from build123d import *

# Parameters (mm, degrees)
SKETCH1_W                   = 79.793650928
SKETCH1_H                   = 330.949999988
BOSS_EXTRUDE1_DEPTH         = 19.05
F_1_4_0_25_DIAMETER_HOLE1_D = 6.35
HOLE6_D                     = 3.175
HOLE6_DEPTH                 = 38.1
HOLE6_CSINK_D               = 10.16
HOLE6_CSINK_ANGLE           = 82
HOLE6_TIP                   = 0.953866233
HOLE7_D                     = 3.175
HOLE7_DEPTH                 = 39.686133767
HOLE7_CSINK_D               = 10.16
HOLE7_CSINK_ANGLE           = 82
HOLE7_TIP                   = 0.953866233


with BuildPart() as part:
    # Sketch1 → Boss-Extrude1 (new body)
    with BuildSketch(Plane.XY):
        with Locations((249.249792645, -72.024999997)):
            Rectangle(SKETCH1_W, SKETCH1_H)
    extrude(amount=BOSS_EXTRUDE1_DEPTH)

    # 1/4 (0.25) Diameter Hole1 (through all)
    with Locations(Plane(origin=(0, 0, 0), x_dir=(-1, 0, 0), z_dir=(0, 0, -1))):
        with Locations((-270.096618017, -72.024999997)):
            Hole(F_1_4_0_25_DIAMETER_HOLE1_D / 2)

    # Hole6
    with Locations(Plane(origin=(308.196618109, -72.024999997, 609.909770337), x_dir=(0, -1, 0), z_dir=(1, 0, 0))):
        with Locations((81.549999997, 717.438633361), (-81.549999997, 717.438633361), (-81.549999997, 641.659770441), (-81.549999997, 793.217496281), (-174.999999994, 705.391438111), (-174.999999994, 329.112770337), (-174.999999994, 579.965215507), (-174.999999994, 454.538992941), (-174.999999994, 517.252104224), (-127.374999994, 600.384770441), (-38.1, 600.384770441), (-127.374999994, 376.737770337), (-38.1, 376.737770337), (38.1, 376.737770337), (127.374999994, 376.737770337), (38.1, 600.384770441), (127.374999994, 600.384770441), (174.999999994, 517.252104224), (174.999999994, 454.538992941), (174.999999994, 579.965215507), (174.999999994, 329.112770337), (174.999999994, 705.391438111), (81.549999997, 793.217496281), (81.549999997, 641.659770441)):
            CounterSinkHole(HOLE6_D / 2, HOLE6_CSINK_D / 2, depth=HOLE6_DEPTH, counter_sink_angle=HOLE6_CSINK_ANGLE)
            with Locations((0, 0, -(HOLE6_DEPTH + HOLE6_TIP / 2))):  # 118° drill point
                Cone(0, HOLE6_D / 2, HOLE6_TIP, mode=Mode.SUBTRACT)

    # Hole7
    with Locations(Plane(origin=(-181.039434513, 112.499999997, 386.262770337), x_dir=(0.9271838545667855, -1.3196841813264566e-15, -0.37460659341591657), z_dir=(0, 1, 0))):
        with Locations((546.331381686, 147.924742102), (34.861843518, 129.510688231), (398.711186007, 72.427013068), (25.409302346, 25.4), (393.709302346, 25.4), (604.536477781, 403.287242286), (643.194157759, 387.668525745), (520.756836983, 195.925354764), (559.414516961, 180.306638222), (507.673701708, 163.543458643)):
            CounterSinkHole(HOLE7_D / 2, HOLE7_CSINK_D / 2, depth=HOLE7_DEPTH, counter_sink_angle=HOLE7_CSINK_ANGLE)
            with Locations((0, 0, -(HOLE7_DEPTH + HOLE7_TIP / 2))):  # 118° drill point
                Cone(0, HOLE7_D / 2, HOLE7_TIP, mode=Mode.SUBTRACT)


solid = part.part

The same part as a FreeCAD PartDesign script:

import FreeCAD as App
import Part
import Sketcher
from FreeCAD import Vector
Q = App.Units.Quantity


def add_polygon(sketch, points):
    """Adds a closed chain of lines whose ends are joined by coincident constraints."""
    first, n = sketch.GeometryCount, len(points)
    for a, b in zip(points, points[1:] + points[:1]):
        sketch.addGeometry(Part.LineSegment(App.Vector(*a, 0), App.Vector(*b, 0)), False)
    for i in range(n):
        sketch.addConstraint(Sketcher.Constraint("Coincident", first + i, 2, first + (i + 1) % n, 1))

doc = App.newDocument("Part")
body = doc.addObject("PartDesign::Body", "Body")

# Sketch on XY plane
sketch1 = body.newObject("Sketcher::SketchObject", "Sketch")
sketch1.AttachmentSupport = (doc.getObject("XY_Plane"), [""])
sketch1.MapMode = "FlatFace"
add_polygon(sketch1, [(209, 93), (209, -237), (289, -237), (289, 93)])  # lines 0-3
sketch1.addConstraint(Sketcher.Constraint("Vertical", 0))
sketch1.addConstraint(Sketcher.Constraint("Horizontal", 1))
sketch1.addConstraint(Sketcher.Constraint("Vertical", 2))
sketch1.addConstraint(Sketcher.Constraint("Horizontal", 3))
sketch1.addConstraint(Sketcher.Constraint("DistanceY", 0, 2, 0, 1, Q("330.95 mm")))
sketch1.addConstraint(Sketcher.Constraint("DistanceX", 1, 1, 1, 2, Q("79.793651 mm")))
sketch1.addConstraint(Sketcher.Constraint("DistanceY", 0, 2, -1, 1, Q("237.5 mm")))
sketch1.addConstraint(Sketcher.Constraint("DistanceX", -1, 1, 1, 2, Q("289.146618 mm")))
pad1 = body.newObject("PartDesign::Pad", "Pad")
pad1.Profile = sketch1
pad1.Length = Q("0.75 in")

# Sketch on XY plane
sketch2 = body.newObject("Sketcher::SketchObject", "Sketch001")
sketch2.AttachmentSupport = (doc.getObject("XY_Plane"), [""])
sketch2.MapMode = "FlatFace"
sketch2.addGeometry(Part.Circle(Vector(270.1, -72, 0), Vector(0, 0, 1), 3.2), False)
sketch2.addConstraint(Sketcher.Constraint("Diameter", 0, Q("0.25 in")))
sketch2.addConstraint(Sketcher.Constraint("DistanceY", 0, 3, -1, 1, Q("72.025 mm")))
sketch2.addConstraint(Sketcher.Constraint("DistanceX", -1, 1, 0, 3, Q("270.096618 mm")))
doc.recompute()
hole = body.newObject("PartDesign::Hole", "Hole")
hole.Profile = sketch2
hole.ThreadType = "None"
hole.Diameter = Q("0.25 in")
hole.DepthType = "ThroughAll"
hole.Reversed = True

# Sketch on YZ plane
sketch3 = body.newObject("Sketcher::SketchObject", "Sketch002")
sketch3.AttachmentSupport = (doc.getObject("YZ_Plane"), [""])
sketch3.MapMode = "FlatFace"
sketch3.AttachmentOffset = App.Placement(Vector(0, 0, 308.196618), App.Rotation())
sketch3.addGeometry(Part.Circle(Vector(-153.6, -107.5, 0), Vector(0, 0, 1), 1.6), False)
sketch3.addGeometry(Part.Circle(Vector(9.5, -107.5, 0), Vector(0, 0, 1), 1.6), False)
sketch3.addGeometry(Part.Circle(Vector(9.5, -31.8, 0), Vector(0, 0, 1), 1.6), False)
sketch3.addGeometry(Part.Circle(Vector(9.5, -183.3, 0), Vector(0, 0, 1), 1.6), False)
sketch3.addGeometry(Part.Circle(Vector(103, -95.5, 0), Vector(0, 0, 1), 1.6), False)
sketch3.addGeometry(Part.Circle(Vector(103, 280.8, 0), Vector(0, 0, 1), 1.6), False)
sketch3.addGeometry(Part.Circle(Vector(103, 29.9, 0), Vector(0, 0, 1), 1.6), False)
sketch3.addGeometry(Part.Circle(Vector(103, 155.4, 0), Vector(0, 0, 1), 1.6), False)
sketch3.addGeometry(Part.Circle(Vector(103, 92.7, 0), Vector(0, 0, 1), 1.6), False)
sketch3.addGeometry(Part.Circle(Vector(55.3, 9.5, 0), Vector(0, 0, 1), 1.6), False)
sketch3.addGeometry(Part.Circle(Vector(-33.9, 9.5, 0), Vector(0, 0, 1), 1.6), False)
sketch3.addGeometry(Part.Circle(Vector(55.3, 233.2, 0), Vector(0, 0, 1), 1.6), False)
sketch3.addGeometry(Part.Circle(Vector(-33.9, 233.2, 0), Vector(0, 0, 1), 1.6), False)
sketch3.addGeometry(Part.Circle(Vector(-110.1, 233.2, 0), Vector(0, 0, 1), 1.6), False)
sketch3.addGeometry(Part.Circle(Vector(-199.4, 233.2, 0), Vector(0, 0, 1), 1.6), False)
sketch3.addGeometry(Part.Circle(Vector(-110.1, 9.5, 0), Vector(0, 0, 1), 1.6), False)
sketch3.addGeometry(Part.Circle(Vector(-199.4, 9.5, 0), Vector(0, 0, 1), 1.6), False)
sketch3.addGeometry(Part.Circle(Vector(-247, 92.7, 0), Vector(0, 0, 1), 1.6), False)
sketch3.addGeometry(Part.Circle(Vector(-247, 155.4, 0), Vector(0, 0, 1), 1.6), False)
sketch3.addGeometry(Part.Circle(Vector(-247, 29.9, 0), Vector(0, 0, 1), 1.6), False)
sketch3.addGeometry(Part.Circle(Vector(-247, 280.8, 0), Vector(0, 0, 1), 1.6), False)
sketch3.addGeometry(Part.Circle(Vector(-247, -95.5, 0), Vector(0, 0, 1), 1.6), False)
sketch3.addGeometry(Part.Circle(Vector(-153.6, -183.3, 0), Vector(0, 0, 1), 1.6), False)
sketch3.addGeometry(Part.Circle(Vector(-153.6, -31.8, 0), Vector(0, 0, 1), 1.6), False)
sketch3.addConstraint(Sketcher.Constraint("Equal", 0, 1))
sketch3.addConstraint(Sketcher.Constraint("Equal", 1, 2))
sketch3.addConstraint(Sketcher.Constraint("Equal", 2, 3))
sketch3.addConstraint(Sketcher.Constraint("Equal", 3, 4))
sketch3.addConstraint(Sketcher.Constraint("Equal", 4, 5))
sketch3.addConstraint(Sketcher.Constraint("Equal", 5, 6))
sketch3.addConstraint(Sketcher.Constraint("Equal", 6, 7))
sketch3.addConstraint(Sketcher.Constraint("Equal", 7, 8))
sketch3.addConstraint(Sketcher.Constraint("Equal", 8, 9))
sketch3.addConstraint(Sketcher.Constraint("Equal", 9, 10))
sketch3.addConstraint(Sketcher.Constraint("Equal", 10, 11))
sketch3.addConstraint(Sketcher.Constraint("Equal", 11, 12))
sketch3.addConstraint(Sketcher.Constraint("Equal", 12, 13))
sketch3.addConstraint(Sketcher.Constraint("Equal", 13, 14))
sketch3.addConstraint(Sketcher.Constraint("Equal", 14, 15))
sketch3.addConstraint(Sketcher.Constraint("Equal", 15, 16))
sketch3.addConstraint(Sketcher.Constraint("Equal", 16, 17))
sketch3.addConstraint(Sketcher.Constraint("Equal", 17, 18))
sketch3.addConstraint(Sketcher.Constraint("Equal", 18, 19))
sketch3.addConstraint(Sketcher.Constraint("Equal", 19, 20))
sketch3.addConstraint(Sketcher.Constraint("Equal", 20, 21))
sketch3.addConstraint(Sketcher.Constraint("Equal", 21, 22))
sketch3.addConstraint(Sketcher.Constraint("Equal", 22, 23))
sketch3.addConstraint(Sketcher.Constraint("Horizontal", 0, 3, 1, 3))
sketch3.addConstraint(Sketcher.Constraint("Horizontal", 9, 3, 10, 3))
sketch3.addConstraint(Sketcher.Constraint("Horizontal", 11, 3, 12, 3))
sketch3.addConstraint(Sketcher.Constraint("Horizontal", 12, 3, 13, 3))
sketch3.addConstraint(Sketcher.Constraint("Horizontal", 13, 3, 14, 3))
sketch3.addConstraint(Sketcher.Constraint("Horizontal", 10, 3, 15, 3))
sketch3.addConstraint(Sketcher.Constraint("Horizontal", 15, 3, 16, 3))
sketch3.addConstraint(Sketcher.Constraint("Horizontal", 8, 3, 17, 3))
sketch3.addConstraint(Sketcher.Constraint("Horizontal", 7, 3, 18, 3))
sketch3.addConstraint(Sketcher.Constraint("Horizontal", 6, 3, 19, 3))
sketch3.addConstraint(Sketcher.Constraint("Horizontal", 5, 3, 20, 3))
sketch3.addConstraint(Sketcher.Constraint("Horizontal", 4, 3, 21, 3))
sketch3.addConstraint(Sketcher.Constraint("Horizontal", 3, 3, 22, 3))
sketch3.addConstraint(Sketcher.Constraint("Horizontal", 2, 3, 23, 3))
sketch3.addConstraint(Sketcher.Constraint("Vertical", 1, 3, 2, 3))
sketch3.addConstraint(Sketcher.Constraint("Vertical", 2, 3, 3, 3))
sketch3.addConstraint(Sketcher.Constraint("Vertical", 4, 3, 5, 3))
sketch3.addConstraint(Sketcher.Constraint("Vertical", 5, 3, 6, 3))
sketch3.addConstraint(Sketcher.Constraint("Vertical", 6, 3, 7, 3))
sketch3.addConstraint(Sketcher.Constraint("Vertical", 7, 3, 8, 3))
sketch3.addConstraint(Sketcher.Constraint("Vertical", 9, 3, 11, 3))
sketch3.addConstraint(Sketcher.Constraint("Vertical", 10, 3, 12, 3))
sketch3.addConstraint(Sketcher.Constraint("Vertical", 13, 3, 15, 3))
sketch3.addConstraint(Sketcher.Constraint("Vertical", 14, 3, 16, 3))
sketch3.addConstraint(Sketcher.Constraint("Vertical", 17, 3, 18, 3))
sketch3.addConstraint(Sketcher.Constraint("Vertical", 18, 3, 19, 3))
sketch3.addConstraint(Sketcher.Constraint("Vertical", 19, 3, 20, 3))
sketch3.addConstraint(Sketcher.Constraint("Vertical", 20, 3, 21, 3))
sketch3.addConstraint(Sketcher.Constraint("Vertical", 0, 3, 22, 3))
sketch3.addConstraint(Sketcher.Constraint("Vertical", 22, 3, 23, 3))
sketch3.addConstraint(Sketcher.Constraint("Diameter", 0, Q("0.125 in")))
sketch3.addConstraint(Sketcher.Constraint("DistanceX", 13, 3, 12, 3, Q("3 in")))
sketch3.addConstraint(Sketcher.Constraint("DistanceY", 2, 3, -1, 1, Q("1.25 in")))
sketch3.addConstraint(Sketcher.Constraint("DistanceY", -1, 1, 11, 3, Q("9.18 in")))
sketch3.addConstraint(Sketcher.Constraint("DistanceX", -1, 1, 1, 3, Q("0.375 in")))
sketch3.addConstraint(Sketcher.Constraint("DistanceY", -1, 1, 5, 3, Q("11.055 in")))
sketch3.addConstraint(Sketcher.Constraint("DistanceY", -1, 1, 9, 3, Q("0.375 in")))
sketch3.addConstraint(Sketcher.Constraint("DistanceX", 9, 3, 6, 3, Q("1.875 in")))
sketch3.addConstraint(Sketcher.Constraint("DistanceX", 17, 3, 16, 3, Q("1.875 in")))
sketch3.addConstraint(Sketcher.Constraint("DistanceX", 0, 3, -1, 1, Q("153.575 mm")))
sketch3.addConstraint(Sketcher.Constraint("DistanceX", -1, 1, 4, 3, Q("102.975 mm")))
sketch3.addConstraint(Sketcher.Constraint("DistanceX", 10, 3, -1, 1, Q("33.925 mm")))
sketch3.addConstraint(Sketcher.Constraint("DistanceX", 14, 3, -1, 1, Q("199.4 mm")))
sketch3.addConstraint(Sketcher.Constraint("DistanceY", 3, 3, 4, 3, Q("87.826058 mm")))
sketch3.addConstraint(Sketcher.Constraint("DistanceY", 3, 3, 6, 3, Q("213.252281 mm")))
sketch3.addConstraint(Sketcher.Constraint("DistanceY", 1, 3, 7, 3, Q("262.89964 mm")))
sketch3.addConstraint(Sketcher.Constraint("DistanceY", 8, 3, 7, 3, Q("62.713111 mm")))
sketch3.addConstraint(Sketcher.Constraint("DistanceY", 6, 3, 8, 3, Q("62.713111 mm")))
sketch3.addConstraint(Sketcher.Constraint("DistanceY", 0, 3, -1, 1, Q("107.528863 mm")))
doc.recompute()
hole2 = body.newObject("PartDesign::Hole", "Hole001")
hole2.Profile = sketch3
hole2.ThreadType = "None"
hole2.Diameter = Q("0.125 in")
hole2.DepthType = "Dimension"
hole2.Depth = Q("1.5 in")
hole2.DrillPoint = "Angled"
hole2.DrillPointAngle = 118
hole2.HoleCutType = "Countersink"
hole2.HoleCutDiameter = Q("0.4 in")
hole2.HoleCutCountersinkAngle = 82

# Sketch on XZ plane
sketch4 = body.newObject("Sketcher::SketchObject", "Sketch003")
sketch4.AttachmentSupport = (doc.getObject("XZ_Plane"), [""])
sketch4.MapMode = "FlatFace"
sketch4.AttachmentOffset = App.Placement(Vector(0, 0, -112.5), App.Rotation())
sketch4.addGeometry(Part.Circle(Vector(270.1, 44.5, 0), Vector(0, 0, 1), 1.6), False)
sketch4.addGeometry(Part.Circle(Vector(-197.2, 253.1, 0), Vector(0, 0, 1), 1.6), False)
sketch4.addGeometry(Part.Circle(Vector(161.5, 169.7, 0), Vector(0, 0, 1), 1.6), False)
sketch4.addGeometry(Part.Circle(Vector(-167, 353.2, 0), Vector(0, 0, 1), 1.6), False)
sketch4.addGeometry(Part.Circle(Vector(174.5, 215.2, 0), Vector(0, 0, 1), 1.6), False)
sketch4.addGeometry(Part.Circle(Vector(228.4, -214.1, 0), Vector(0, 0, 1), 1.6), False)
sketch4.addGeometry(Part.Circle(Vector(270.1, -214.1, 0), Vector(0, 0, 1), 1.6), False)
sketch4.addGeometry(Part.Circle(Vector(228.4, 9.5, 0), Vector(0, 0, 1), 1.6), False)
sketch4.addGeometry(Part.Circle(Vector(270.1, 9.5, 0), Vector(0, 0, 1), 1.6), False)
sketch4.addGeometry(Part.Circle(Vector(228.4, 44.5, 0), Vector(0, 0, 1), 1.6), False)
sketch4.addConstraint(Sketcher.Constraint("Equal", 0, 1))
sketch4.addConstraint(Sketcher.Constraint("Equal", 1, 2))
sketch4.addConstraint(Sketcher.Constraint("Equal", 2, 3))
sketch4.addConstraint(Sketcher.Constraint("Equal", 3, 4))
sketch4.addConstraint(Sketcher.Constraint("Equal", 4, 5))
sketch4.addConstraint(Sketcher.Constraint("Equal", 5, 6))
sketch4.addConstraint(Sketcher.Constraint("Equal", 6, 7))
sketch4.addConstraint(Sketcher.Constraint("Equal", 7, 8))
sketch4.addConstraint(Sketcher.Constraint("Equal", 8, 9))
sketch4.addConstraint(Sketcher.Constraint("Horizontal", 5, 3, 6, 3))
sketch4.addConstraint(Sketcher.Constraint("Horizontal", 7, 3, 8, 3))
sketch4.addConstraint(Sketcher.Constraint("Horizontal", 0, 3, 9, 3))
sketch4.addConstraint(Sketcher.Constraint("Vertical", 0, 3, 6, 3))
sketch4.addConstraint(Sketcher.Constraint("Vertical", 5, 3, 7, 3))
sketch4.addConstraint(Sketcher.Constraint("Vertical", 6, 3, 8, 3))
sketch4.addConstraint(Sketcher.Constraint("Vertical", 7, 3, 9, 3))
sketch4.addConstraint(Sketcher.Constraint("Diameter", 0, Q("0.125 in")))
sketch4.addConstraint(Sketcher.Constraint("DistanceY", -1, 1, 0, 3, Q("1.75 in")))
sketch4.addConstraint(Sketcher.Constraint("DistanceY", 5, 3, -1, 1, Q("8.43 in")))
sketch4.addConstraint(Sketcher.Constraint("DistanceY", -1, 1, 7, 3, Q("0.375 in")))
sketch4.addConstraint(Sketcher.Constraint("DistanceY", -1, 1, 4, 3, Q("215.2262 mm")))
sketch4.addConstraint(Sketcher.Constraint("DistanceY", 2, 3, 1, 3, Q("83.373301 mm")))
sketch4.addConstraint(Sketcher.Constraint("DistanceX", 4, 3, 5, 3, Q("53.916501 mm")))
sketch4.addConstraint(Sketcher.Constraint("DistanceX", -1, 1, 0, 3, Q("270.096618 mm")))
sketch4.addConstraint(Sketcher.Constraint("DistanceY", -1, 1, 3, 3, Q("353.193808 mm")))
sketch4.addConstraint(Sketcher.Constraint("DistanceX", 3, 3, 2, 3, Q("328.50285 mm")))
sketch4.addConstraint(Sketcher.Constraint("DistanceX", 4, 3, 0, 3, Q("95.610152 mm")))
sketch4.addConstraint(Sketcher.Constraint("DistanceX", 1, 3, 4, 3, Q("371.71812 mm")))
sketch4.addConstraint(Sketcher.Constraint("DistanceY", -1, 1, 1, 3, Q("253.123075 mm")))
sketch4.addConstraint(Sketcher.Constraint("DistanceX", -1, 1, 2, 3, Q("161.507503 mm")))
doc.recompute()
hole3 = body.newObject("PartDesign::Hole", "Hole002")
hole3.Profile = sketch4
hole3.ThreadType = "None"
hole3.Diameter = Q("0.125 in")
hole3.DepthType = "Dimension"
hole3.Depth = 39.686134
hole3.DrillPoint = "Angled"
hole3.DrillPointAngle = 118
hole3.HoleCutType = "Countersink"
hole3.HoleCutDiameter = Q("0.4 in")
hole3.HoleCutCountersinkAngle = 82
hole3.Reversed = True

doc.recompute()
